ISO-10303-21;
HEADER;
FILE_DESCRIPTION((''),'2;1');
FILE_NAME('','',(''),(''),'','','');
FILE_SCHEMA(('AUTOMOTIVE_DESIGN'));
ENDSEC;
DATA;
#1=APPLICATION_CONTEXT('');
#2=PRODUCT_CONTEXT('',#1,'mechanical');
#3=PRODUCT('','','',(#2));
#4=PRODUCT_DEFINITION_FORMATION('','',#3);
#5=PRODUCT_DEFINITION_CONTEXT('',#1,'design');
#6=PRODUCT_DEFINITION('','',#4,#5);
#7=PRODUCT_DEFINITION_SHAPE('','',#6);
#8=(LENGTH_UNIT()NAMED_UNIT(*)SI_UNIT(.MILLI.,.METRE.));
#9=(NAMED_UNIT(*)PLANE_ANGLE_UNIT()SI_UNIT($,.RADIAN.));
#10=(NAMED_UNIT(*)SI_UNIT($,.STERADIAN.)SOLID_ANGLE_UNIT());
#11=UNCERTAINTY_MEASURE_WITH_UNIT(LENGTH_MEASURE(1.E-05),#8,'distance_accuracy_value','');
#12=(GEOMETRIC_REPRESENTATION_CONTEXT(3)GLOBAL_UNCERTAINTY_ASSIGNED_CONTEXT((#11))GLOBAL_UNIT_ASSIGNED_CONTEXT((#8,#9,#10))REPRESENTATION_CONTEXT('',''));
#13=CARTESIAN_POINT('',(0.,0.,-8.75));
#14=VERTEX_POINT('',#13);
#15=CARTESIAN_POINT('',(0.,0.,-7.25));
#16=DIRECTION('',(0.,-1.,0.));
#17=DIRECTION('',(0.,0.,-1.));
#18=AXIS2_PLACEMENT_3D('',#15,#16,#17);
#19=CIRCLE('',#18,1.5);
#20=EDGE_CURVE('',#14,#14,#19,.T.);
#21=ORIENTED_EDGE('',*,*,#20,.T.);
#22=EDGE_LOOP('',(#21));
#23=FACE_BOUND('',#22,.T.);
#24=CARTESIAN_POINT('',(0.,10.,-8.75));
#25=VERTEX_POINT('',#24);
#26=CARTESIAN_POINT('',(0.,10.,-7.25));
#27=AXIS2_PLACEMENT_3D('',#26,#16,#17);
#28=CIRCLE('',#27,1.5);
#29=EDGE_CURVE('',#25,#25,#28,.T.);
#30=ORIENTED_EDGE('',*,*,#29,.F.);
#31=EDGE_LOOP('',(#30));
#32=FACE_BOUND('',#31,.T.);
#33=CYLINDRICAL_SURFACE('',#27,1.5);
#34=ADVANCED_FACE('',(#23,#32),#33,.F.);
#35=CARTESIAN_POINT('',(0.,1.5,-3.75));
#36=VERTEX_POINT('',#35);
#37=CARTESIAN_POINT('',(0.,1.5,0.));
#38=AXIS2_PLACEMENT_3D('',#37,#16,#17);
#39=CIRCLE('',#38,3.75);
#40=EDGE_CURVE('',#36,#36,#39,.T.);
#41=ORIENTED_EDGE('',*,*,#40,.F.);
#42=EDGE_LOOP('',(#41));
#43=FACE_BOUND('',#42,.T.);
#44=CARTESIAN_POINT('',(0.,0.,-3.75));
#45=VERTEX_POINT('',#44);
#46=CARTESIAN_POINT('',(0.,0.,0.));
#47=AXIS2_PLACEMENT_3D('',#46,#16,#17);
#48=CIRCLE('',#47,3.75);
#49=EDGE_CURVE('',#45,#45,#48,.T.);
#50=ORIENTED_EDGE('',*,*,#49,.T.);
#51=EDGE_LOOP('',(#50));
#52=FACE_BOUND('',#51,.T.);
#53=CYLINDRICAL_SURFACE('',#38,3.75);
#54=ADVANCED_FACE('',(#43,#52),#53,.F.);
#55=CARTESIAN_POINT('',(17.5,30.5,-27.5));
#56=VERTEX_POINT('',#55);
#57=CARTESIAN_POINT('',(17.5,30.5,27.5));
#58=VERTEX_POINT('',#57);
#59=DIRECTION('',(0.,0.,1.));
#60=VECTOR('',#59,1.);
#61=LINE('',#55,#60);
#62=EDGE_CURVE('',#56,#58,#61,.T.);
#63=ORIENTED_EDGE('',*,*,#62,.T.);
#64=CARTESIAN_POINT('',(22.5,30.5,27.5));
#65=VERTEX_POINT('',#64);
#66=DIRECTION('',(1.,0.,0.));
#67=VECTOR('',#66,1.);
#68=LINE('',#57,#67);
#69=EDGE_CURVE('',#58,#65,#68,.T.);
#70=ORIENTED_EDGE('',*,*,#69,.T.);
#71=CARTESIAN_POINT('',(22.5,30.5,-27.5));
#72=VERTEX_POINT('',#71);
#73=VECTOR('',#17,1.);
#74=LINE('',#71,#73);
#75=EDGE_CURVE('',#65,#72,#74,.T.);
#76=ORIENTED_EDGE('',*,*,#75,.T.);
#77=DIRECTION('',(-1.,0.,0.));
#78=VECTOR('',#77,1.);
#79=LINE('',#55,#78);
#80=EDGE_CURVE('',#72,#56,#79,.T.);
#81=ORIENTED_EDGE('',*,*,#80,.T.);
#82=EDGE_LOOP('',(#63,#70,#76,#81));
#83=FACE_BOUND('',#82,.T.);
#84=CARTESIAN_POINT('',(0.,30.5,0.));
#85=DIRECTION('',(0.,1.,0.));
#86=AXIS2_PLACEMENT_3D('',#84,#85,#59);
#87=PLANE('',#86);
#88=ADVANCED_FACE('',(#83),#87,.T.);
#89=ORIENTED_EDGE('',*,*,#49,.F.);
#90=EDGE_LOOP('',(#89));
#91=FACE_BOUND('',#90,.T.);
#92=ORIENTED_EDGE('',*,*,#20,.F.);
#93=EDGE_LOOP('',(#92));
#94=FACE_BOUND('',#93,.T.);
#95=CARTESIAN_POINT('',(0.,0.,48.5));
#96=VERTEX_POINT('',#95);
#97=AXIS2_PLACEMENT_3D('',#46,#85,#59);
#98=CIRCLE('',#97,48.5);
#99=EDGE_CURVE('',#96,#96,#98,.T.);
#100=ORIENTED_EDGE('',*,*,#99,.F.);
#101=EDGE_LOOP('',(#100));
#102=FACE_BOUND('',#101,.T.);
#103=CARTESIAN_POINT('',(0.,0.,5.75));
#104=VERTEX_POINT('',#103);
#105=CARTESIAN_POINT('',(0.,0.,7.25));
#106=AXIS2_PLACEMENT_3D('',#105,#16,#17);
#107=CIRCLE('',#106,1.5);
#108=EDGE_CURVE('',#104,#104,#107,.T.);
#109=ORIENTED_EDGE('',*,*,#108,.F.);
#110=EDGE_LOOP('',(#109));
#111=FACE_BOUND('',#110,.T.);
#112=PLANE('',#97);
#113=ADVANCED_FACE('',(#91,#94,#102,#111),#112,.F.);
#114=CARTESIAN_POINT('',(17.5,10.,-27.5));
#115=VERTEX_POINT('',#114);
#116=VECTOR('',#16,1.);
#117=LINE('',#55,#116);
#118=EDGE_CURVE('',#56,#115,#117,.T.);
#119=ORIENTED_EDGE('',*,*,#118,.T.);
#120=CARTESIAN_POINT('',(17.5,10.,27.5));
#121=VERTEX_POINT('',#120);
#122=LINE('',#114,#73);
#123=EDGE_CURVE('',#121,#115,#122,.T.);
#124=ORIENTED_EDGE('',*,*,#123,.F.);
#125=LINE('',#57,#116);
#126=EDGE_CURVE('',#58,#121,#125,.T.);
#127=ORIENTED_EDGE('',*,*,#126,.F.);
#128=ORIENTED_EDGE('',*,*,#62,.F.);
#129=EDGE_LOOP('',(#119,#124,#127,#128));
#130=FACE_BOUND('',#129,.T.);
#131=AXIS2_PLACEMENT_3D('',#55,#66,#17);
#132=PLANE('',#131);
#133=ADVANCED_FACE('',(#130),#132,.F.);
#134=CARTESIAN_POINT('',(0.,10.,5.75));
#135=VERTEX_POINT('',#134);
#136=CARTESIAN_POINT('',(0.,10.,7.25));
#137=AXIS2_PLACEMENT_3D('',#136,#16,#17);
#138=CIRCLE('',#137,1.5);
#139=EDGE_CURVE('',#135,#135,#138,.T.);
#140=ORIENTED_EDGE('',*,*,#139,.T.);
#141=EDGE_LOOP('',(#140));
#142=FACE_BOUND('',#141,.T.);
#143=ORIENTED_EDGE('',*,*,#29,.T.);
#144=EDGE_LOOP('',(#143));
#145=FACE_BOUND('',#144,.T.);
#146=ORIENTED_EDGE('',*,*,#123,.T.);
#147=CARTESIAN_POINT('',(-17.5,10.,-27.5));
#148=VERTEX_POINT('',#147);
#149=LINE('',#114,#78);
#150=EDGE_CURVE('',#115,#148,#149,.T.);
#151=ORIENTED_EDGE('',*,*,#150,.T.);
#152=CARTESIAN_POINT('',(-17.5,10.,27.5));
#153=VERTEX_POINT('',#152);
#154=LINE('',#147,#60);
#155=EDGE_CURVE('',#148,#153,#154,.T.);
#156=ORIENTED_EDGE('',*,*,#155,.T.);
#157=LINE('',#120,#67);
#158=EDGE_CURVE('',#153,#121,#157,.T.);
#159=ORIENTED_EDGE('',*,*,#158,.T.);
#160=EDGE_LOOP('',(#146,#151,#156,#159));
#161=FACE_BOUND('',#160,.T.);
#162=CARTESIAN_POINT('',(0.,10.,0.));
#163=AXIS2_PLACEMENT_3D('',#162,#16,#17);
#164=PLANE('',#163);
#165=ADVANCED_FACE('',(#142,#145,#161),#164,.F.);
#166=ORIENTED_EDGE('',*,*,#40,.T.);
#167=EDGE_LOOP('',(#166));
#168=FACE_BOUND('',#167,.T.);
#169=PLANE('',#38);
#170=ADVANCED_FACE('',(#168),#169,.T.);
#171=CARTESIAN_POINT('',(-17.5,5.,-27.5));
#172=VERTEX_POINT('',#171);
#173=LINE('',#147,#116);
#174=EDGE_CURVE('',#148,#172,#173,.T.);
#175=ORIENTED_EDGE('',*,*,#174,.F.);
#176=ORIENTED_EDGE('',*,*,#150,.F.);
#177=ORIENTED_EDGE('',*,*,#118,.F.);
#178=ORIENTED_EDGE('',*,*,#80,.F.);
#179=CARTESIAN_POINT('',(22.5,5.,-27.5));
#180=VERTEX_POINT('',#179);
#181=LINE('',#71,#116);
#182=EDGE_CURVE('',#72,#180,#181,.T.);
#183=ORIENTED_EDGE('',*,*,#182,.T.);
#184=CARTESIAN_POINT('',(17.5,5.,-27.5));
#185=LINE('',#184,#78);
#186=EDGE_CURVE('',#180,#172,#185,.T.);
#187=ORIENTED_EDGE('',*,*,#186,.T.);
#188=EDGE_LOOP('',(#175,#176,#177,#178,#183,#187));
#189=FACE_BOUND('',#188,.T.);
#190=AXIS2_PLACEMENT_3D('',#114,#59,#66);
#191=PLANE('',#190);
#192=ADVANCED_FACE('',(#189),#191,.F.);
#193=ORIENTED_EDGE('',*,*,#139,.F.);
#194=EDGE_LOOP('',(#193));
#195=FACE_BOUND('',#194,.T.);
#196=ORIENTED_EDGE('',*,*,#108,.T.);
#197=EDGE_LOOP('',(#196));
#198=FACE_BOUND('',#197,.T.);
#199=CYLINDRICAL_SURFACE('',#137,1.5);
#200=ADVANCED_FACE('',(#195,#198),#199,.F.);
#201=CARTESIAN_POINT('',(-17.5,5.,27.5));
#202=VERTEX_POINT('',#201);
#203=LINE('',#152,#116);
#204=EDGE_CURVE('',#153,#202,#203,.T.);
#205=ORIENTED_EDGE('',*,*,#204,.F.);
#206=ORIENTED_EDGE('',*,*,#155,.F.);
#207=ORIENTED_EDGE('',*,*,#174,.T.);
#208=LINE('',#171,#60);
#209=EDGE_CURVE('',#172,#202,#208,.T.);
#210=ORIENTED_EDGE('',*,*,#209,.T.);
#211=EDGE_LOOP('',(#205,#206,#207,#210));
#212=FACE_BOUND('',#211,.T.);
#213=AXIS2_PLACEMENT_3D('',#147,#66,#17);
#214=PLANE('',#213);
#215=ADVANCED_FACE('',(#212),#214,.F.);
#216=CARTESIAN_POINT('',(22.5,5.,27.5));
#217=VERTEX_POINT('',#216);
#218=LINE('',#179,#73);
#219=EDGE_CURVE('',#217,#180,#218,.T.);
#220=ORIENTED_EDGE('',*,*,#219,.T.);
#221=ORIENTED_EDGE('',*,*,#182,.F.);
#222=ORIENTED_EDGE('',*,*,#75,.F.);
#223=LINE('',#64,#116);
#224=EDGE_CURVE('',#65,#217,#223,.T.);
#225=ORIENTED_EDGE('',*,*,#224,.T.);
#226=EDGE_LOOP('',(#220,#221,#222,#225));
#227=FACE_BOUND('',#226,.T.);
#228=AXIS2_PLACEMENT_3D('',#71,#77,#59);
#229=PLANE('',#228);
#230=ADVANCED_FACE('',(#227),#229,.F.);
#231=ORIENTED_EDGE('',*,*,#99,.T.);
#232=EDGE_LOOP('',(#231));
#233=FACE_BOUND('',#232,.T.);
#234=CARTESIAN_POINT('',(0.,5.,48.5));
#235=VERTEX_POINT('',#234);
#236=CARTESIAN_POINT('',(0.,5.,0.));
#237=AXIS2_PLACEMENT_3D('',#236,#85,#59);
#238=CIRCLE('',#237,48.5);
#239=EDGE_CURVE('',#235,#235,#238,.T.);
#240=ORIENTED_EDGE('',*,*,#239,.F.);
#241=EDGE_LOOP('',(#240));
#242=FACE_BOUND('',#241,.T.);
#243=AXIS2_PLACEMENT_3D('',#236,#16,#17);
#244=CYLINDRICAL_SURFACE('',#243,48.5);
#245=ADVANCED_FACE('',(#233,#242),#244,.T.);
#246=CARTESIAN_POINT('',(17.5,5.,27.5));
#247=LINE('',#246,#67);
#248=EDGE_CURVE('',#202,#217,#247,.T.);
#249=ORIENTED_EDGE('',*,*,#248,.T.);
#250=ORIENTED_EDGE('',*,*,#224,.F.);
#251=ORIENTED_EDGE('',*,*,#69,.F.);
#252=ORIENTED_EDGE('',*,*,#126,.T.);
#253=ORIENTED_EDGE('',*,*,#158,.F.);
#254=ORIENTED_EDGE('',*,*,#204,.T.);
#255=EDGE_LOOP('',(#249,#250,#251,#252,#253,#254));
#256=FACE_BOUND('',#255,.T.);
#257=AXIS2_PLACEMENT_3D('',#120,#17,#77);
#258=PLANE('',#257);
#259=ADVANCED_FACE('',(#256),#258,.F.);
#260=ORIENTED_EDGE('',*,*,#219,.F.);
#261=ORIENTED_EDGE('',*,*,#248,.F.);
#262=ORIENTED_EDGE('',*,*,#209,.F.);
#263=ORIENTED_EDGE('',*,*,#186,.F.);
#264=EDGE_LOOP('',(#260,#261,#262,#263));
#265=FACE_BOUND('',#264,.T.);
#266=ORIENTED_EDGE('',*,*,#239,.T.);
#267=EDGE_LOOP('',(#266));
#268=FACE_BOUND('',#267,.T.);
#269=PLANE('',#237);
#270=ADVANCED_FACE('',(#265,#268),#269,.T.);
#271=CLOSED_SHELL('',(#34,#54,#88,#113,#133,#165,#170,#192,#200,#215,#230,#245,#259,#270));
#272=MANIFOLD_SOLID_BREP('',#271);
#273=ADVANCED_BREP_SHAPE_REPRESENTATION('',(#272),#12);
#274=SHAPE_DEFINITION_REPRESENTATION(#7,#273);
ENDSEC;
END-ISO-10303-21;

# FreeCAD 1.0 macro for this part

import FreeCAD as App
import Part
import Sketcher
from FreeCAD import Vector
Q = App.Units.Quantity


def add_polygon(sketch, points):
    """Adds a closed chain of lines whose ends are joined by coincident constraints."""
    first, n = sketch.GeometryCount, len(points)
    for a, b in zip(points, points[1:] + points[:1]):
        sketch.addGeometry(Part.LineSegment(App.Vector(*a, 0), App.Vector(*b, 0)), False)
    for i in range(n):
        sketch.addConstraint(Sketcher.Constraint("Coincident", first + i, 2, first + (i + 1) % n, 1))

doc = App.newDocument("Part")
body = doc.addObject("PartDesign::Body", "Body")

sketch1 = body.newObject("Sketcher::SketchObject", "Sketch")
sketch1.AttachmentSupport = (doc.getObject("XZ_Plane"), [""])
sketch1.MapMode = "FlatFace"
sketch1.addGeometry(Part.Circle(Vector(0, 0, 0), Vector(0, 0, 1), 48), False)
sketch1.addConstraint([
    Sketcher.Constraint("Coincident", 0, 3, -1, 1),
    Sketcher.Constraint("Diameter", 0, Q("97 mm")),
])
pad1 = body.newObject("PartDesign::Pad", "Pad")
pad1.Profile = sketch1
pad1.Length = 5
pad1.Reversed = True

sketch2 = body.newObject("Sketcher::SketchObject", "Sketch001")
sketch2.AttachmentSupport = (doc.getObject("XZ_Plane"), [""])
sketch2.MapMode = "FlatFace"
sketch2.AttachmentOffset = App.Placement(Vector(0, 0, -5), App.Rotation())
add_polygon(sketch2, [(-18, -28), (-18, 28), (18, 28), (18, -28)])
sketch2.addConstraint([
    Sketcher.Constraint("Vertical", 0),
    Sketcher.Constraint("Horizontal", 1),
    Sketcher.Constraint("Vertical", 2),
    Sketcher.Constraint("Horizontal", 3),
    Sketcher.Constraint("Symmetric", 0, 2, 2, 2, -1, 1),
    Sketcher.Constraint("DistanceX", 1, 1, 1, 2, Q("35 mm")),
    Sketcher.Constraint("DistanceY", 0, 1, 0, 2, Q("55 mm")),
])
pad2 = body.newObject("PartDesign::Pad", "Pad001")
pad2.Profile = sketch2
pad2.Length = 5
pad2.Reversed = True

sketch3 = body.newObject("Sketcher::SketchObject", "Sketch002")
sketch3.AttachmentSupport = (doc.getObject("XZ_Plane"), [""])
sketch3.MapMode = "FlatFace"
sketch3.addGeometry([
    Part.Circle(Vector(0, 7.2, 0), Vector(0, 0, 1), 1.5),
    Part.Circle(Vector(0, -7.2, 0), Vector(0, 0, 1), 1.5),
], False)
sketch3.addConstraint([
    Sketcher.Constraint("Equal", 0, 1),
    Sketcher.Constraint("Symmetric", 0, 3, 1, 3, -1, 1),
    Sketcher.Constraint("PointOnObject", 0, 3, -2),
    Sketcher.Constraint("Diameter", 0, Q("3 mm")),
    Sketcher.Constraint("DistanceY", 1, 3, 0, 3, Q("14.5 mm")),
])
pocket1 = body.newObject("PartDesign::Pocket", "Pocket")
pocket1.Profile = sketch3
pocket1.Type = "ThroughAll"

sketch4 = body.newObject("Sketcher::SketchObject", "Sketch003")
sketch4.AttachmentSupport = (doc.getObject("XZ_Plane"), [""])
sketch4.MapMode = "FlatFace"
sketch4.addGeometry(Part.Circle(Vector(0, 0, 0), Vector(0, 0, 1), 3.8), False)
sketch4.addConstraint([
    Sketcher.Constraint("Coincident", 0, 3, -1, 1),
    Sketcher.Constraint("Diameter", 0, Q("7.5 mm")),
])
pocket2 = body.newObject("PartDesign::Pocket", "Pocket001")
pocket2.Profile = sketch4
pocket2.Length = 1.5

sketch5 = body.newObject("Sketcher::SketchObject", "Sketch004")
sketch5.AttachmentSupport = (doc.getObject("XZ_Plane"), [""])
sketch5.MapMode = "FlatFace"
sketch5.AttachmentOffset = App.Placement(Vector(0, 0, -5), App.Rotation())
add_polygon(sketch5, [(18, -28), (18, 28), (22, 28), (22, -28)])
sketch5.addConstraint([
    Sketcher.Constraint("Vertical", 0),
    Sketcher.Constraint("Horizontal", 1),
    Sketcher.Constraint("Vertical", 2),
    Sketcher.Constraint("Horizontal", 3),
    Sketcher.Constraint("DistanceX", 1, 1, 1, 2, Q("5 mm")),
    Sketcher.Constraint("DistanceY", 0, 1, 0, 2, Q("55 mm")),
    Sketcher.Constraint("DistanceX", -1, 1, 0, 2, Q("17.5 mm")),
    Sketcher.Constraint("DistanceY", -1, 1, 0, 2, Q("27.5 mm")),
])
pad3 = body.newObject("PartDesign::Pad", "Pad002")
pad3.Profile = sketch5
pad3.Length = 25.5
pad3.Reversed = True

doc.recompute()
